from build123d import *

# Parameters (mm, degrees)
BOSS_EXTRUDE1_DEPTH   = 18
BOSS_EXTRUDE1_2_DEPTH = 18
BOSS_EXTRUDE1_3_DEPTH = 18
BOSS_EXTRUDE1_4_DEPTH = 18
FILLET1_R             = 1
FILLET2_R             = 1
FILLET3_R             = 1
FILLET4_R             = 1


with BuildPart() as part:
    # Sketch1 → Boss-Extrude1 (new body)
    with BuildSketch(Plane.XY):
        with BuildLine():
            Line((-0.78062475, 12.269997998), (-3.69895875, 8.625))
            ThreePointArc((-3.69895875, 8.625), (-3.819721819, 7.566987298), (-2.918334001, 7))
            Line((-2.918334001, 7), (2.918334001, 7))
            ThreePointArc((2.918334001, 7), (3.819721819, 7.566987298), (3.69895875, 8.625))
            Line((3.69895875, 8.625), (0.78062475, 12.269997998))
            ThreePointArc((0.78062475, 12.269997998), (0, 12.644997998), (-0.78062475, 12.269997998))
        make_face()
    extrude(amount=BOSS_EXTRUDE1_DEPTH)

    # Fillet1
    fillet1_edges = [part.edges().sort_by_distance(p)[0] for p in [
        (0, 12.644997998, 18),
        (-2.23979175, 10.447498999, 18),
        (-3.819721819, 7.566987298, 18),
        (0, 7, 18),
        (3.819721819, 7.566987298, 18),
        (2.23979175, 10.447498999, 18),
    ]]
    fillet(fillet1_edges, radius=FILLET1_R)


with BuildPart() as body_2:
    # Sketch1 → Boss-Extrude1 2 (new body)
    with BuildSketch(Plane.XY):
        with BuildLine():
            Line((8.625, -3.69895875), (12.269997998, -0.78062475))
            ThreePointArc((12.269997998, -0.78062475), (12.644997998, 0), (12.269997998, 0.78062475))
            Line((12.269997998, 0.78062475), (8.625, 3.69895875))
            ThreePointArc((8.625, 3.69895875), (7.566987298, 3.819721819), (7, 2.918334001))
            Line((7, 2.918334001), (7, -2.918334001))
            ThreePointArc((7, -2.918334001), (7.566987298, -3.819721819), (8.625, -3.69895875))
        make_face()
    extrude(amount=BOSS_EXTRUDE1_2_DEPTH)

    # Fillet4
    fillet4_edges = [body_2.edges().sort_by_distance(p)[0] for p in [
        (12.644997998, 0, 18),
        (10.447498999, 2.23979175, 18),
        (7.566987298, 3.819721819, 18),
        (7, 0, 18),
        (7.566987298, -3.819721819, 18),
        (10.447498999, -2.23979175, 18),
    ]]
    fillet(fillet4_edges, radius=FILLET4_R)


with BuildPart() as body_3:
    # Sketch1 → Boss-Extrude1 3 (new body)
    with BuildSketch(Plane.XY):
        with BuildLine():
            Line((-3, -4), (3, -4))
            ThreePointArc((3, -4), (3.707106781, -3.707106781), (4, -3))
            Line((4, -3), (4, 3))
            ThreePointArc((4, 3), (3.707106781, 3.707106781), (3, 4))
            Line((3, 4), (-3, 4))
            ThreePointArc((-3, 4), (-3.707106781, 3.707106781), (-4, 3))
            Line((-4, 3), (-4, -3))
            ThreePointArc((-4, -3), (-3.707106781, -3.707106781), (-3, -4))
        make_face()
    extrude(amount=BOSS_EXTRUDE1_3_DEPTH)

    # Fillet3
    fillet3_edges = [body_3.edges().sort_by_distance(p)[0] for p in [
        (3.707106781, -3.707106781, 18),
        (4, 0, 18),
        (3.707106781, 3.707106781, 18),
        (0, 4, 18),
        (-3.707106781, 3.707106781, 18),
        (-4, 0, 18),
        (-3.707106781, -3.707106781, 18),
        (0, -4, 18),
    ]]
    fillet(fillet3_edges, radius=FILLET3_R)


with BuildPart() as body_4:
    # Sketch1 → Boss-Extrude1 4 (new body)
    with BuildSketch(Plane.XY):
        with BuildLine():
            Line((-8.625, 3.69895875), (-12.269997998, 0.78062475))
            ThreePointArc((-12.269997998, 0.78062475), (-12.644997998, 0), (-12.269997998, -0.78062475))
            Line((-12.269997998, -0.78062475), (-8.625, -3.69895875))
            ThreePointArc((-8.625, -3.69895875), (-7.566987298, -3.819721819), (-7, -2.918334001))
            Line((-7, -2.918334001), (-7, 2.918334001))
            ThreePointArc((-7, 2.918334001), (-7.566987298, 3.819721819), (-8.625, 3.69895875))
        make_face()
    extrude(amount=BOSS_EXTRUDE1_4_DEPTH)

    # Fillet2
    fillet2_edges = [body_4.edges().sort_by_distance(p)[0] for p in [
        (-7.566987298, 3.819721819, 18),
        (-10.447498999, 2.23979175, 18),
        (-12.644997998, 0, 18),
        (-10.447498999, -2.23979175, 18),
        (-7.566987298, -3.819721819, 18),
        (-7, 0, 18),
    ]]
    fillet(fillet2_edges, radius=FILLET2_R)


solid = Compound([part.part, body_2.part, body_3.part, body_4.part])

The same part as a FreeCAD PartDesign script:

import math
import FreeCAD as App
import Part
import Sketcher


def edges_at(feature, points):
    """Names of the edges that pass closest to the given points."""
    edges = feature.Shape.Edges
    near = lambda p: min(range(len(edges)), key=lambda i: edges[i].distToShape(Part.Vertex(*p))[0])
    return sorted({f"Edge{near(p) + 1}" for p in points})

doc = App.newDocument("Part")
params = doc.addObject("Spreadsheet::Sheet", "Params")
for row, (alias, value) in enumerate([
    ("sketch1_radius", "1 mm"),
    ("pad1_length", "18 mm"),
    ("fillet_radius", "1 mm"),
    ("sketch2_radius", "1 mm"),
    ("pad2_length", "18 mm"),
    ("fillet2_radius", "1 mm"),
    ("sketch3_radius", "1 mm"),
    ("sketch3_width", "6 mm"),
    ("pad3_length", "18 mm"),
    ("fillet3_radius", "1 mm"),
    ("sketch4_radius", "1 mm"),
    ("pad4_length", "18 mm"),
    ("fillet4_radius", "1 mm"),
], start=1):
    params.set(f"A{row}", alias)
    params.set(f"B{row}", "=" + value)
    params.setAlias(f"B{row}", alias)

body = doc.addObject("PartDesign::Body", "Body")

sketch1 = body.newObject("Sketcher::SketchObject", "Sketch")
sketch1.AttachmentSupport = (doc.getObject("XY_Plane"), [""])
sketch1.MapMode = "FlatFace"
sketch1.addGeometry([
    Part.LineSegment(App.Vector(-0.780625, 12.269998, 0), App.Vector(-3.698959, 8.625, 0)),
    Part.ArcOfCircle(Part.Circle(App.Vector(-2.918334, 8, 0), App.Vector(0, 0, 1), 1), math.radians(141.317813), math.radians(270)),
    Part.LineSegment(App.Vector(-2.918334, 7, 0), App.Vector(2.918334, 7, 0)),
    Part.ArcOfCircle(Part.Circle(App.Vector(2.918334, 8, 0), App.Vector(0, 0, 1), 1), math.radians(-90), math.radians(38.682187)),
    Part.LineSegment(App.Vector(3.698959, 8.625, 0), App.Vector(0.780625, 12.269998, 0)),
    Part.ArcOfCircle(Part.Circle(App.Vector(0, 11.644998, 0), App.Vector(0, 0, 1), 1), math.radians(38.682187), math.radians(141.317813)),
], False)
sketch1.addConstraint([
    Sketcher.Constraint("Tangent", 0, 2, 1, 1),
    Sketcher.Constraint("Tangent", 1, 2, 2, 1),
    Sketcher.Constraint("Tangent", 2, 2, 3, 1),
    Sketcher.Constraint("Tangent", 3, 2, 4, 1),
    Sketcher.Constraint("Tangent", 4, 2, 5, 1),
    Sketcher.Constraint("Tangent", 5, 2, 0, 1),
    Sketcher.Constraint("Horizontal", 2),
    Sketcher.Constraint("Equal", 1, 3),
    Sketcher.Constraint("Equal", 3, 5),
    Sketcher.Constraint("Symmetric", 0, 2, 3, 2, -2),
    Sketcher.Constraint("Radius", 1, 1.0),
    Sketcher.Constraint("DistanceY", -1, 1, 1, 3, 8.0),
    Sketcher.Constraint("DistanceY", -1, 1, 0, 2, 8.625),
    Sketcher.Constraint("DistanceX", 2, 1, 2, 2, 5.836668),
])
sketch1.setExpression("Constraints[10]", "Params.sketch1_radius")
pad1 = body.newObject("PartDesign::Pad", "Pad")
pad1.Profile = sketch1
pad1.setExpression("Length", "Params.pad1_length")
doc.recompute()

fillet = body.newObject("PartDesign::Fillet", "Fillet")
fillet.Base = (pad1, edges_at(pad1, [
    (0, 12.645, 18),
    (-2.24, 10.447, 18),
    (-3.82, 7.567, 18),
    (0, 7, 18),
    (3.82, 7.567, 18),
    (2.24, 10.447, 18),
]))
fillet.setExpression("Radius", "Params.fillet_radius")
body2 = doc.addObject("PartDesign::Body", "Body001")

sketch2 = body2.newObject("Sketcher::SketchObject", "Sketch001")
sketch2.AttachmentSupport = (doc.getObject("XY_Plane001"), [""])
sketch2.MapMode = "FlatFace"
sketch2.addGeometry([
    Part.LineSegment(App.Vector(8.625, -3.698959, 0), App.Vector(12.269998, -0.780625, 0)),
    Part.ArcOfCircle(Part.Circle(App.Vector(11.644998, 0, 0), App.Vector(0, 0, 1), 1), math.radians(-51.317813), math.radians(51.317813)),
    Part.LineSegment(App.Vector(12.269998, 0.780625, 0), App.Vector(8.625, 3.698959, 0)),
    Part.ArcOfCircle(Part.Circle(App.Vector(8, 2.918334, 0), App.Vector(0, 0, 1), 1), math.radians(51.317813), math.radians(180)),
    Part.LineSegment(App.Vector(7, 2.918334, 0), App.Vector(7, -2.918334, 0)),
    Part.ArcOfCircle(Part.Circle(App.Vector(8, -2.918334, 0), App.Vector(0, 0, 1), 1), math.radians(-180), math.radians(-51.317813)),
], False)
sketch2.addConstraint([
    Sketcher.Constraint("Tangent", 0, 2, 1, 1),
    Sketcher.Constraint("Tangent", 1, 2, 2, 1),
    Sketcher.Constraint("Tangent", 2, 2, 3, 1),
    Sketcher.Constraint("Tangent", 3, 2, 4, 1),
    Sketcher.Constraint("Tangent", 4, 2, 5, 1),
    Sketcher.Constraint("Tangent", 5, 2, 0, 1),
    Sketcher.Constraint("Vertical", 4),
    Sketcher.Constraint("Equal", 1, 3),
    Sketcher.Constraint("Equal", 3, 5),
    Sketcher.Constraint("Symmetric", 0, 2, 1, 2, -1),
    Sketcher.Constraint("Radius", 1, 1.0),
    Sketcher.Constraint("DistanceX", -1, 1, 3, 3, 8.0),
    Sketcher.Constraint("DistanceX", -1, 1, 2, 2, 8.625),
    Sketcher.Constraint("DistanceY", 4, 2, 4, 1, 5.836668),
])
sketch2.setExpression("Constraints[10]", "Params.sketch2_radius")
pad2 = body2.newObject("PartDesign::Pad", "Pad001")
pad2.Profile = sketch2
pad2.setExpression("Length", "Params.pad2_length")
doc.recompute()

fillet2 = body2.newObject("PartDesign::Fillet", "Fillet001")
fillet2.Base = (pad2, edges_at(pad2, [
    (12.645, 0, 18),
    (10.447, 2.24, 18),
    (7.567, 3.82, 18),
    (7, 0, 18),
    (7.567, -3.82, 18),
    (10.447, -2.24, 18),
]))
fillet2.setExpression("Radius", "Params.fillet2_radius")
body3 = doc.addObject("PartDesign::Body", "Body002")

sketch3 = body3.newObject("Sketcher::SketchObject", "Sketch002")
sketch3.AttachmentSupport = (doc.getObject("XY_Plane002"), [""])
sketch3.MapMode = "FlatFace"
sketch3.addGeometry([
    Part.LineSegment(App.Vector(-3, -4, 0), App.Vector(3, -4, 0)),
    Part.ArcOfCircle(Part.Circle(App.Vector(3, -3, 0), App.Vector(0, 0, 1), 1), math.radians(-90), math.radians(0)),
    Part.LineSegment(App.Vector(4, -3, 0), App.Vector(4, 3, 0)),
    Part.ArcOfCircle(Part.Circle(App.Vector(3, 3, 0), App.Vector(0, 0, 1), 1), math.radians(0), math.radians(90)),
    Part.LineSegment(App.Vector(3, 4, 0), App.Vector(-3, 4, 0)),
    Part.ArcOfCircle(Part.Circle(App.Vector(-3, 3, 0), App.Vector(0, 0, 1), 1), math.radians(90), math.radians(180)),
    Part.LineSegment(App.Vector(-4, 3, 0), App.Vector(-4, -3, 0)),
    Part.ArcOfCircle(Part.Circle(App.Vector(-3, -3, 0), App.Vector(0, 0, 1), 1), math.radians(-180), math.radians(-90)),
], False)
sketch3.addConstraint([
    Sketcher.Constraint("Tangent", 0, 2, 1, 1),
    Sketcher.Constraint("Tangent", 1, 2, 2, 1),
    Sketcher.Constraint("Tangent", 2, 2, 3, 1),
    Sketcher.Constraint("Tangent", 3, 2, 4, 1),
    Sketcher.Constraint("Tangent", 4, 2, 5, 1),
    Sketcher.Constraint("Tangent", 5, 2, 6, 1),
    Sketcher.Constraint("Tangent", 6, 2, 7, 1),
    Sketcher.Constraint("Tangent", 7, 2, 0, 1),
    Sketcher.Constraint("Horizontal", 0),
    Sketcher.Constraint("Vertical", 2),
    Sketcher.Constraint("Horizontal", 4),
    Sketcher.Constraint("Vertical", 6),
    Sketcher.Constraint("Equal", 1, 3),
    Sketcher.Constraint("Equal", 3, 5),
    Sketcher.Constraint("Equal", 5, 7),
    Sketcher.Constraint("Symmetric", 1, 3, 5, 3, -1, 1),
    Sketcher.Constraint("Equal", 4, 2),
    Sketcher.Constraint("Radius", 1, 1.0),
    Sketcher.Constraint("DistanceX", 0, 1, 0, 2, 6.0),
])
sketch3.setExpression("Constraints[17]", "Params.sketch3_radius")
sketch3.setExpression("Constraints[18]", "Params.sketch3_width")
pad3 = body3.newObject("PartDesign::Pad", "Pad002")
pad3.Profile = sketch3
pad3.setExpression("Length", "Params.pad3_length")
doc.recompute()

fillet3 = body3.newObject("PartDesign::Fillet", "Fillet002")
fillet3.Base = (pad3, edges_at(pad3, [
    (3.707, -3.707, 18),
    (4, 0, 18),
    (3.707, 3.707, 18),
    (0, 4, 18),
    (-3.707, 3.707, 18),
    (-4, 0, 18),
    (-3.707, -3.707, 18),
    (0, -4, 18),
]))
fillet3.setExpression("Radius", "Params.fillet3_radius")
body4 = doc.addObject("PartDesign::Body", "Body003")

sketch4 = body4.newObject("Sketcher::SketchObject", "Sketch003")
sketch4.AttachmentSupport = (doc.getObject("XY_Plane003"), [""])
sketch4.MapMode = "FlatFace"
sketch4.addGeometry([
    Part.LineSegment(App.Vector(-8.625, 3.698959, 0), App.Vector(-12.269998, 0.780625, 0)),
    Part.ArcOfCircle(Part.Circle(App.Vector(-11.644998, 0, 0), App.Vector(0, 0, 1), 1), math.radians(128.682187), math.radians(231.317813)),
    Part.LineSegment(App.Vector(-12.269998, -0.780625, 0), App.Vector(-8.625, -3.698959, 0)),
    Part.ArcOfCircle(Part.Circle(App.Vector(-8, -2.918334, 0), App.Vector(0, 0, 1), 1), math.radians(-128.682187), math.radians(0)),
    Part.LineSegment(App.Vector(-7, -2.918334, 0), App.Vector(-7, 2.918334, 0)),
    Part.ArcOfCircle(Part.Circle(App.Vector(-8, 2.918334, 0), App.Vector(0, 0, 1), 1), math.radians(0), math.radians(128.682187)),
], False)
sketch4.addConstraint([
    Sketcher.Constraint("Tangent", 0, 2, 1, 1),
    Sketcher.Constraint("Tangent", 1, 2, 2, 1),
    Sketcher.Constraint("Tangent", 2, 2, 3, 1),
    Sketcher.Constraint("Tangent", 3, 2, 4, 1),
    Sketcher.Constraint("Tangent", 4, 2, 5, 1),
    Sketcher.Constraint("Tangent", 5, 2, 0, 1),
    Sketcher.Constraint("Vertical", 4),
    Sketcher.Constraint("Equal", 1, 3),
    Sketcher.Constraint("Equal", 3, 5),
    Sketcher.Constraint("Symmetric", 0, 2, 1, 2, -1),
    Sketcher.Constraint("Radius", 1, 1.0),
    Sketcher.Constraint("DistanceX", 3, 3, -1, 1, 8.0),
    Sketcher.Constraint("DistanceX", 2, 2, -1, 1, 8.625),
    Sketcher.Constraint("DistanceY", 4, 1, 4, 2, 5.836668),
])
sketch4.setExpression("Constraints[10]", "Params.sketch4_radius")
pad4 = body4.newObject("PartDesign::Pad", "Pad003")
pad4.Profile = sketch4
pad4.setExpression("Length", "Params.pad4_length")
doc.recompute()

fillet4 = body4.newObject("PartDesign::Fillet", "Fillet003")
fillet4.Base = (pad4, edges_at(pad4, [
    (-7.567, 3.82, 18),
    (-10.447, 2.24, 18),
    (-12.645, 0, 18),
    (-10.447, -2.24, 18),
    (-7.567, -3.82, 18),
    (-7, 0, 18),
]))
fillet4.setExpression("Radius", "Params.fillet4_radius")

doc.recompute()
